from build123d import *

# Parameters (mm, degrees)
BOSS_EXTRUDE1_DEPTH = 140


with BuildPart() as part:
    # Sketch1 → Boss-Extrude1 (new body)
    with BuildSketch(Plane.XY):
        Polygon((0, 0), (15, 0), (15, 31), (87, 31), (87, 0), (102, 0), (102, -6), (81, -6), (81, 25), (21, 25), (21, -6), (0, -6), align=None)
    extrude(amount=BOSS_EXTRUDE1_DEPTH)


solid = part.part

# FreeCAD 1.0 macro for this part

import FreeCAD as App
import Part
import Sketcher
Q = App.Units.Quantity

doc = App.newDocument("Part")
body = doc.addObject("PartDesign::Body", "Body")

sketch1 = doc.addObject("Sketcher::SketchObject", "Sketch")
body.addObject(sketch1)
sketch1.AttachmentSupport = (doc.XY_Plane, [""])
sketch1.MapMode = "FlatFace"
sketch1.addGeometry([
    Part.LineSegment(App.Vector(15, 0, 0), App.Vector(0, 0, 0)),
    Part.LineSegment(App.Vector(0, 0, 0), App.Vector(0, -6, 0)),
    Part.LineSegment(App.Vector(0, -6, 0), App.Vector(21, -6, 0)),
    Part.LineSegment(App.Vector(21, -6, 0), App.Vector(21, 25, 0)),
    Part.LineSegment(App.Vector(21, 25, 0), App.Vector(81, 25, 0)),
    Part.LineSegment(App.Vector(81, 25, 0), App.Vector(81, -6, 0)),
    Part.LineSegment(App.Vector(81, -6, 0), App.Vector(102, -6, 0)),
    Part.LineSegment(App.Vector(102, -6, 0), App.Vector(102, 0, 0)),
    Part.LineSegment(App.Vector(102, 0, 0), App.Vector(87, 0, 0)),
    Part.LineSegment(App.Vector(87, 0, 0), App.Vector(87, 31, 0)),
    Part.LineSegment(App.Vector(87, 31, 0), App.Vector(15, 31, 0)),
    Part.LineSegment(App.Vector(15, 31, 0), App.Vector(15, 0, 0)),
], False)
sketch1.addConstraint([
    Sketcher.Constraint("Coincident", 0, 2, 1, 1),
    Sketcher.Constraint("Coincident", 1, 2, 2, 1),
    Sketcher.Constraint("Coincident", 2, 2, 3, 1),
    Sketcher.Constraint("Coincident", 3, 2, 4, 1),
    Sketcher.Constraint("Coincident", 4, 2, 5, 1),
    Sketcher.Constraint("Coincident", 5, 2, 6, 1),
    Sketcher.Constraint("Coincident", 6, 2, 7, 1),
    Sketcher.Constraint("Coincident", 7, 2, 8, 1),
    Sketcher.Constraint("Coincident", 8, 2, 9, 1),
    Sketcher.Constraint("Coincident", 9, 2, 10, 1),
    Sketcher.Constraint("Coincident", 10, 2, 11, 1),
    Sketcher.Constraint("Coincident", 11, 2, 0, 1),
    Sketcher.Constraint("Horizontal", 0),
    Sketcher.Constraint("Vertical", 1),
    Sketcher.Constraint("Horizontal", 2),
    Sketcher.Constraint("Vertical", 3),
    Sketcher.Constraint("Horizontal", 4),
    Sketcher.Constraint("Vertical", 5),
    Sketcher.Constraint("Horizontal", 6),
    Sketcher.Constraint("Vertical", 7),
    Sketcher.Constraint("Horizontal", 8),
    Sketcher.Constraint("Vertical", 9),
    Sketcher.Constraint("Horizontal", 10),
    Sketcher.Constraint("Vertical", 11),
    Sketcher.Constraint("Coincident", 0, 2, -1, 1),
    Sketcher.Constraint("PointOnObject", 7, 2, -1),
    Sketcher.Constraint("Horizontal", 2, 2, 5, 2),
    Sketcher.Constraint("Equal", 2, 6),
    Sketcher.Constraint("Equal", 0, 8),
    Sketcher.Constraint("Equal", 5, 9),
    Sketcher.Constraint("DistanceX", 0, 2, 0, 1, Q("15 mm")),
    Sketcher.Constraint("DistanceX", 2, 1, 2, 2, Q("21 mm")),
    Sketcher.Constraint("DistanceX", 4, 1, 4, 2, Q("60 mm")),
    Sketcher.Constraint("DistanceY", 1, 2, 1, 1, Q("6 mm")),
    Sketcher.Constraint("DistanceY", 3, 1, 3, 2, Q("31 mm")),
])
pad1 = doc.addObject("PartDesign::Pad", "Pad")
body.addObject(pad1)
pad1.Profile = sketch1
pad1.Length = 140

doc.recompute()
